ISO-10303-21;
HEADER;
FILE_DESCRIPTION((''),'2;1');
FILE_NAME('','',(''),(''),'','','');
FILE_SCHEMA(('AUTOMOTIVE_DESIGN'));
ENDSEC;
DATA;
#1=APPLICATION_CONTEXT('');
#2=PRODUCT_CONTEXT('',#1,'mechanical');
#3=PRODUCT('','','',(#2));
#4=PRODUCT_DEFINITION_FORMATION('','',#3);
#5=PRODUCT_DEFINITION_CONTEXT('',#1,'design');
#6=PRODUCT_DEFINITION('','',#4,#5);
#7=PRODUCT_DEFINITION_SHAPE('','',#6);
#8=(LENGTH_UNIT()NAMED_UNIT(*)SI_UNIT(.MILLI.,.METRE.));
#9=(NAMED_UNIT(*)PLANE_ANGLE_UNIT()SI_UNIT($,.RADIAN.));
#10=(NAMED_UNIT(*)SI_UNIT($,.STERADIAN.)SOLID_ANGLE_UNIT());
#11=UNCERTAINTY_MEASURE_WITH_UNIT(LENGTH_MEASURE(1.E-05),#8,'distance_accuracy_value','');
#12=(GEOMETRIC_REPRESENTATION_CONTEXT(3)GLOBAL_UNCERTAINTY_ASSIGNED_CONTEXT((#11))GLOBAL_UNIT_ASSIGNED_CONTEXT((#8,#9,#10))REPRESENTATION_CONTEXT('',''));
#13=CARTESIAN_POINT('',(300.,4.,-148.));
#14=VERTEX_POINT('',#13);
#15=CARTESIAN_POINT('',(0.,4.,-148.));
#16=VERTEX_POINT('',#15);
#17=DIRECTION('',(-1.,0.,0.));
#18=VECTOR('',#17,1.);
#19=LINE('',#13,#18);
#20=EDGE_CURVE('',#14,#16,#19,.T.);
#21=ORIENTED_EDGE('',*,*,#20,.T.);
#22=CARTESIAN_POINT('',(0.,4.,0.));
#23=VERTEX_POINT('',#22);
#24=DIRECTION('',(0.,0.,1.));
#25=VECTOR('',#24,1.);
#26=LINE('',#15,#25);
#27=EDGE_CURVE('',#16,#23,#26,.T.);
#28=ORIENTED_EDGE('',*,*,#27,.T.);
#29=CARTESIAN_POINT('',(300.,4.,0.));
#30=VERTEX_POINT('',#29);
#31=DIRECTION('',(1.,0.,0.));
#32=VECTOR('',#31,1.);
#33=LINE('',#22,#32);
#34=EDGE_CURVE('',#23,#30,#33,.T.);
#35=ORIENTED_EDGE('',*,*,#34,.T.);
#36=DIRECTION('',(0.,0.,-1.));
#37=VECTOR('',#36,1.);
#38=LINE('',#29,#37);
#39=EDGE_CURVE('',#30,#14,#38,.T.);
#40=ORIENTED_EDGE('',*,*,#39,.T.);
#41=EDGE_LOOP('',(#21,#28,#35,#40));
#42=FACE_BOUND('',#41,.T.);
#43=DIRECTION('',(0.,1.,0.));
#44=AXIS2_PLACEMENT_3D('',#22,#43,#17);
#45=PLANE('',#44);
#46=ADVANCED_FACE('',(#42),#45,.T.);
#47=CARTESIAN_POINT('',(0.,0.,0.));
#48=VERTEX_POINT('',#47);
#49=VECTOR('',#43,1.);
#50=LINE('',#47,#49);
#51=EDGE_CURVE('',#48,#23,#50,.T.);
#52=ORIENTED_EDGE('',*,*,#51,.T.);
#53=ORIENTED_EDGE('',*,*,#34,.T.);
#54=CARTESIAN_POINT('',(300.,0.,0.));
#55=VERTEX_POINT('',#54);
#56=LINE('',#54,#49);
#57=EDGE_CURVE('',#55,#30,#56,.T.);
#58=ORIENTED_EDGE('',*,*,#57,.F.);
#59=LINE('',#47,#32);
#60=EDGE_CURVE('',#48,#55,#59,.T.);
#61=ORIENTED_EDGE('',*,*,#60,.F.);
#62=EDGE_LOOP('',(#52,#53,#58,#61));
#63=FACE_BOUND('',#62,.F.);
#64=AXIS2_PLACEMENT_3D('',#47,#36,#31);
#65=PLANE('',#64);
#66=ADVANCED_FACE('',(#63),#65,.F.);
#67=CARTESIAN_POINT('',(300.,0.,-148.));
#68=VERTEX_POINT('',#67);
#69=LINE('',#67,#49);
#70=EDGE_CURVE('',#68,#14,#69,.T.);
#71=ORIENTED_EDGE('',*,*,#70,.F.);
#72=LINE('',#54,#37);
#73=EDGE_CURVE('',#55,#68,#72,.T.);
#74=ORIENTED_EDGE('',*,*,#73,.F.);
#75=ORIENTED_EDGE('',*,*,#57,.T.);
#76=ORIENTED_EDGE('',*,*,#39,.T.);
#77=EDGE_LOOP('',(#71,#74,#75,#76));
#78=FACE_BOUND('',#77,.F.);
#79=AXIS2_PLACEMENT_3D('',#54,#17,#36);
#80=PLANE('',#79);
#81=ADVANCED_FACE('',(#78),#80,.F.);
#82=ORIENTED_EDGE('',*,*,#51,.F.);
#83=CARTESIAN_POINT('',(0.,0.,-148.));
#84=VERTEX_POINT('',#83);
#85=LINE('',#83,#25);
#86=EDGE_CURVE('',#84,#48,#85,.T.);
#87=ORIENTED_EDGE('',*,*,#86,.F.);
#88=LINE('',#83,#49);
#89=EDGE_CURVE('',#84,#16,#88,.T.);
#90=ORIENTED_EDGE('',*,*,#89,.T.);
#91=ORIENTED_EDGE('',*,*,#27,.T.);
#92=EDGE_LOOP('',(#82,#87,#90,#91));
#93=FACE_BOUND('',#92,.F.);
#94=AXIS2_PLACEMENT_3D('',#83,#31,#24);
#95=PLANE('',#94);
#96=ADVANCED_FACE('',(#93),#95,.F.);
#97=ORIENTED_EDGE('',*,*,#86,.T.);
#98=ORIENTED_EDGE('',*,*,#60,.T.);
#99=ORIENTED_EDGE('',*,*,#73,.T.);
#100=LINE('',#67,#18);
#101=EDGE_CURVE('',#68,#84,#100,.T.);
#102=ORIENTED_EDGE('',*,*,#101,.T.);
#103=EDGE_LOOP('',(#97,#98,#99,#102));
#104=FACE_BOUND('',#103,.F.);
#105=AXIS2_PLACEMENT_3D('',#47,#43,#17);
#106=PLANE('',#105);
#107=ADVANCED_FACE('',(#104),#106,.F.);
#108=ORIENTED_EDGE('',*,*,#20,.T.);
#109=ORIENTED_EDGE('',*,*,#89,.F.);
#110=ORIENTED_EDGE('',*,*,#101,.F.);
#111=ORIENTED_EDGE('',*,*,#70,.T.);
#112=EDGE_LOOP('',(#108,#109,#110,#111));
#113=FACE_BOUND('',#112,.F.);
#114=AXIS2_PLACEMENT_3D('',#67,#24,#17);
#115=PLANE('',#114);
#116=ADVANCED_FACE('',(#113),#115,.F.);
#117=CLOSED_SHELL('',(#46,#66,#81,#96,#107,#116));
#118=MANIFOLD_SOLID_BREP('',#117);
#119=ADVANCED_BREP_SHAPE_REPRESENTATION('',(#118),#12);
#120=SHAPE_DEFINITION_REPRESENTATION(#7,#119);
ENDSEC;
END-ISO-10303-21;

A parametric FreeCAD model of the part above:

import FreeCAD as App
import Part
import Sketcher

V = App.Vector

doc = App.newDocument("Part")
body = doc.addObject("PartDesign::Body", "Body")

# Sketch on XZ plane
sketch1 = body.newObject("Sketcher::SketchObject", "Sketch")
sketch1.AttachmentSupport = (doc.getObject("XZ_Plane"), [""])
sketch1.MapMode = "FlatFace"
sketch1.addGeometry(Part.LineSegment(V(0, -148, 0), V(0, 0, 0)), False)
sketch1.addGeometry(Part.LineSegment(V(0, 0, 0), V(300, 0, 0)), False)
sketch1.addGeometry(Part.LineSegment(V(300, 0, 0), V(300, -148, 0)), False)
sketch1.addGeometry(Part.LineSegment(V(300, -148, 0), V(0, -148, 0)), False)
sketch1.addConstraint(Sketcher.Constraint("Coincident", 0, 2, 1, 1))
sketch1.addConstraint(Sketcher.Constraint("Coincident", 1, 2, 2, 1))
sketch1.addConstraint(Sketcher.Constraint("Coincident", 2, 2, 3, 1))
sketch1.addConstraint(Sketcher.Constraint("Coincident", 3, 2, 0, 1))
sketch1.addConstraint(Sketcher.Constraint("Vertical", 0))
sketch1.addConstraint(Sketcher.Constraint("Horizontal", 1))
sketch1.addConstraint(Sketcher.Constraint("Vertical", 2))
sketch1.addConstraint(Sketcher.Constraint("Horizontal", 3))
sketch1.addConstraint(Sketcher.Constraint("Coincident", 0, 2, -1, 1))
sketch1.addConstraint(Sketcher.Constraint("DistanceX", 1, 1, 1, 2, 300.0))
sketch1.addConstraint(Sketcher.Constraint("DistanceY", 0, 1, 0, 2, 148.0))
pad1 = body.newObject("PartDesign::Pad", "Pad")
pad1.Profile = sketch1
pad1.Length = 4
pad1.Reversed = True

doc.recompute()
